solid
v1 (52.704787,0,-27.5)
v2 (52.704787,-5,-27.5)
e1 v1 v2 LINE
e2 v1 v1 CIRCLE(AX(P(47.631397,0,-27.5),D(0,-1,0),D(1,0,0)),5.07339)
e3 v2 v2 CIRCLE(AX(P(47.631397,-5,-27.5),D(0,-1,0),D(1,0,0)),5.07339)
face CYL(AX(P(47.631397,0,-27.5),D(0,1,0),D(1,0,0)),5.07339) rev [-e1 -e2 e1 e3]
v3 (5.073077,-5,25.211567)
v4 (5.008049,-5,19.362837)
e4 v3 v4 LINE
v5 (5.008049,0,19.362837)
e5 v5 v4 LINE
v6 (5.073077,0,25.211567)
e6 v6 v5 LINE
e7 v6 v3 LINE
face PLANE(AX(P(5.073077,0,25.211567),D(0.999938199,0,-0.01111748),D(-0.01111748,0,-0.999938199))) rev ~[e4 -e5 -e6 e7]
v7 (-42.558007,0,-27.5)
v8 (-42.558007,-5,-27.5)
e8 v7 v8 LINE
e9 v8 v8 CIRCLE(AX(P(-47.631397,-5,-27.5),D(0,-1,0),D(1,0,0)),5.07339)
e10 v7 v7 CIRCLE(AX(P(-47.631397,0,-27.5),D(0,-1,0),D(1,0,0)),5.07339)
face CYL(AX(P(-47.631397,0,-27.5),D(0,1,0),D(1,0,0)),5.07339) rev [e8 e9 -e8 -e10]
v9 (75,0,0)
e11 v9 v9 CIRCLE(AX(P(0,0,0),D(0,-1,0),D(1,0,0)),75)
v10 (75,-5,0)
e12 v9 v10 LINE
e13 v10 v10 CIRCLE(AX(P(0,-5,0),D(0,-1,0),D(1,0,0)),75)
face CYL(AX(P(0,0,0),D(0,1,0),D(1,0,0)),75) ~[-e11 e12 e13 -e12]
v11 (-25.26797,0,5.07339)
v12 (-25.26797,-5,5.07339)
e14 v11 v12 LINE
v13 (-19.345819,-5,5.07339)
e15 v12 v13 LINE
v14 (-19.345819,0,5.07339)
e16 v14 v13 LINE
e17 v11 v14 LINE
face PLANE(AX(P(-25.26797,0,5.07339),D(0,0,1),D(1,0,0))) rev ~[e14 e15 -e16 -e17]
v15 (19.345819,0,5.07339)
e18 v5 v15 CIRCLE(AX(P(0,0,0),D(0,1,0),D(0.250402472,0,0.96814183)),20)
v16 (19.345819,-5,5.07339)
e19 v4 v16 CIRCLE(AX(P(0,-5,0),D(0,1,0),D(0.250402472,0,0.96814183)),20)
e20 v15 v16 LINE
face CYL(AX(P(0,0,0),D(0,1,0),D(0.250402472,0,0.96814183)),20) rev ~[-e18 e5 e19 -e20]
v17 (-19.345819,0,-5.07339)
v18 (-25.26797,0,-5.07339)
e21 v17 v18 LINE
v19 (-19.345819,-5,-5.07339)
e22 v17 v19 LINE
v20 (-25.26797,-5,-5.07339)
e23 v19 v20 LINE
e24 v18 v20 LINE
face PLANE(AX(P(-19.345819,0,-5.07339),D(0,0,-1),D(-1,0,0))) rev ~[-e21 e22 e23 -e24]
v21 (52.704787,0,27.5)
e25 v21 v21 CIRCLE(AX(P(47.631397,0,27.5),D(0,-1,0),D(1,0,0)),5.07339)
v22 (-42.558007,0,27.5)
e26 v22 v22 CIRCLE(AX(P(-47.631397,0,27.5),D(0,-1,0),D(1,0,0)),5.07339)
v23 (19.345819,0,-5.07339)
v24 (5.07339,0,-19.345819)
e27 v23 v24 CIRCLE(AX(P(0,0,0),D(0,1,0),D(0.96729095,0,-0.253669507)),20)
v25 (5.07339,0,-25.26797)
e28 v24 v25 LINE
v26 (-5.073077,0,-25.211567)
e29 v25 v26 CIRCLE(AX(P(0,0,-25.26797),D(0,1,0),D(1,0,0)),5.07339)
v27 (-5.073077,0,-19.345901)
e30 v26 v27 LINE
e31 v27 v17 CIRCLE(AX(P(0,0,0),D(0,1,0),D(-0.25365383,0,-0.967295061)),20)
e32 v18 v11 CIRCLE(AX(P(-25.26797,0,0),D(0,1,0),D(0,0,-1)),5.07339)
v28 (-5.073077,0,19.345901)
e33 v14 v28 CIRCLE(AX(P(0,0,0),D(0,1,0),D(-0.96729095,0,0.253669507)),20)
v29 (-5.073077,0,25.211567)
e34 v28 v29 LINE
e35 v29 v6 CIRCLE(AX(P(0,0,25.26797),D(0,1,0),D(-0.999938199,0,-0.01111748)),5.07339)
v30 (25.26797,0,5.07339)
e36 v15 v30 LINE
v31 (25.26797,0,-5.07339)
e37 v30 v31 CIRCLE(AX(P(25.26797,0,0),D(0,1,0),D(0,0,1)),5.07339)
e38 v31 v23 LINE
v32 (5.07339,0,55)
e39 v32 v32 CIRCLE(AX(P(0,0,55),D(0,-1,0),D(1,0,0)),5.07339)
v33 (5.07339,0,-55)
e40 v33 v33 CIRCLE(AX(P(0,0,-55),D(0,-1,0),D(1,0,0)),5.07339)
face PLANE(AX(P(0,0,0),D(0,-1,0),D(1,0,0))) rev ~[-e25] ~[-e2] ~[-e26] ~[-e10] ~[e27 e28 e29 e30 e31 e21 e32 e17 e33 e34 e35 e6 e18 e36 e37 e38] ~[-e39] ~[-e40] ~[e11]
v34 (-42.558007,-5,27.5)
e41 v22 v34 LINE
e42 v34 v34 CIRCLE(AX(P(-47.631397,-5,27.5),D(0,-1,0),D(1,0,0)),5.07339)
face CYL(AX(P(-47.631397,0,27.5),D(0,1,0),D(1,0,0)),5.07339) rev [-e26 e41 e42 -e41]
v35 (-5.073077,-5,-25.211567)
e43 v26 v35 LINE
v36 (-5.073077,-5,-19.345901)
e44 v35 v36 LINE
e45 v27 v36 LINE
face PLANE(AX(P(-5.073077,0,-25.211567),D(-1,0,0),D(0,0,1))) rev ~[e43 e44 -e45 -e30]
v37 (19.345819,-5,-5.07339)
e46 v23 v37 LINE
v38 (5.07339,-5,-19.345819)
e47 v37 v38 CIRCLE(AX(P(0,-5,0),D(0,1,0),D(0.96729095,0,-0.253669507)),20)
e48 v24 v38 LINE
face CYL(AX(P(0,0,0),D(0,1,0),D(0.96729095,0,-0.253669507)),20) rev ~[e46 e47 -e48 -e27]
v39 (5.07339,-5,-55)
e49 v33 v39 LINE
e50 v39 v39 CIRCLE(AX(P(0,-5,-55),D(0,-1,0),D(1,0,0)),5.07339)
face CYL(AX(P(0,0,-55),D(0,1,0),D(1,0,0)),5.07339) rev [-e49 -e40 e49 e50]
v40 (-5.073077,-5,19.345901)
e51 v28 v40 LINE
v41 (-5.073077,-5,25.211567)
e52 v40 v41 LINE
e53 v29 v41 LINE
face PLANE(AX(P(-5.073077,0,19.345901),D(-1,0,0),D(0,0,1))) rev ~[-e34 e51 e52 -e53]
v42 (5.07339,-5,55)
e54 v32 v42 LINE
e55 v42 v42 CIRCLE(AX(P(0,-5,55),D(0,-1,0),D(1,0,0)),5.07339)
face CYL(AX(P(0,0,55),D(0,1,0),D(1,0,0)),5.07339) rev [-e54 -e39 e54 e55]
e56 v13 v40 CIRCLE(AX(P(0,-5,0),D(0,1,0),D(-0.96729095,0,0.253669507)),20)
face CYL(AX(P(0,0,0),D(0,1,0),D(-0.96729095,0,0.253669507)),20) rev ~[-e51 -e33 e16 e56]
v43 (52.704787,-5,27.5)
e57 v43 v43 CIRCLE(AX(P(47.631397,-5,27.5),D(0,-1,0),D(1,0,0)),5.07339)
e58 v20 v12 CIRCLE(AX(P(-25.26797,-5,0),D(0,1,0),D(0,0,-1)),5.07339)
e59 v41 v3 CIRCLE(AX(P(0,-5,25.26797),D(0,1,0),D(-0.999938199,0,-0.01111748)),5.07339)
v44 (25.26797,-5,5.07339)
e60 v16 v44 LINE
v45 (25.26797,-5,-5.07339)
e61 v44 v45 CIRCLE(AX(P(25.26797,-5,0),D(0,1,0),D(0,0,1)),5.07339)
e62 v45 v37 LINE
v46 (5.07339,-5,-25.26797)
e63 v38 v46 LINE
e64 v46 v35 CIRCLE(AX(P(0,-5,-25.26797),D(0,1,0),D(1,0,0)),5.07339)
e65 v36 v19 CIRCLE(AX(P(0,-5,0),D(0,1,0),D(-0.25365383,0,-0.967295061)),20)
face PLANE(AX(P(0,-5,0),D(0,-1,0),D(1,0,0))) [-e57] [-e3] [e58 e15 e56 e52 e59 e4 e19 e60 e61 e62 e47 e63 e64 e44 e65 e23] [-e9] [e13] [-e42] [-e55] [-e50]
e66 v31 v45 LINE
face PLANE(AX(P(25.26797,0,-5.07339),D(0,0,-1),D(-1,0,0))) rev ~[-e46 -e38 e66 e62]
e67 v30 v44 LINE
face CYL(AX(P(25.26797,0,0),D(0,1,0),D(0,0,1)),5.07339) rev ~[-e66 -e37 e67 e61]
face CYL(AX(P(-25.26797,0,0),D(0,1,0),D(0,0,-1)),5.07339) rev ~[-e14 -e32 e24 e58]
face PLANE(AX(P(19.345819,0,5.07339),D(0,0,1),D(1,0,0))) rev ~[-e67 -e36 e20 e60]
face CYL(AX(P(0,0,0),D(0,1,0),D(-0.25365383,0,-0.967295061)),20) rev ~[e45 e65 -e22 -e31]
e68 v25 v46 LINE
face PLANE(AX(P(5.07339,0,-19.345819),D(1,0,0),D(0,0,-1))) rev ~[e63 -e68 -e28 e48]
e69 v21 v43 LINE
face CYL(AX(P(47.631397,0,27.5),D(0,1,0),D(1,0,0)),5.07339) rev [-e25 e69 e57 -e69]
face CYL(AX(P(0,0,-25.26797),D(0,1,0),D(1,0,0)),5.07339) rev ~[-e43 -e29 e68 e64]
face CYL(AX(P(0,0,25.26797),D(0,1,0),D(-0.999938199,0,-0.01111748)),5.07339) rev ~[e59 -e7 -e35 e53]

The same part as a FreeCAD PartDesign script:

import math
import FreeCAD as App
import Part
import Sketcher
Q = App.Units.Quantity

doc = App.newDocument("Part")
body = doc.addObject("PartDesign::Body", "Body")

sketch1 = body.newObject("Sketcher::SketchObject", "Sketch")
sketch1.AttachmentSupport = (doc.getObject("XZ_Plane"), [""])
sketch1.MapMode = "FlatFace"
sketch1.addGeometry([
    Part.Circle(App.Vector(0, 0, 0), App.Vector(0, 0, 1), 75),
    Part.Circle(App.Vector(-47.631397, -27.5, 0), App.Vector(0, 0, 1), 5.07339),
    Part.Circle(App.Vector(0, -55, 0), App.Vector(0, 0, 1), 5.07339),
    Part.Circle(App.Vector(47.631397, -27.5, 0), App.Vector(0, 0, 1), 5.07339),
    Part.Circle(App.Vector(-47.631397, 27.5, 0), App.Vector(0, 0, 1), 5.07339),
    Part.LineSegment(App.Vector(-25.26797, 5.07339, 0), App.Vector(-19.345819, 5.07339, 0)),
    Part.ArcOfCircle(Part.Circle(App.Vector(0, 0, 0), App.Vector(0, 0, 1), 20), math.radians(104.693833), math.radians(165.305239)),
    Part.LineSegment(App.Vector(-5.073077, 19.345901, 0), App.Vector(-5.073077, 25.211567, 0)),
    Part.ArcOfCircle(Part.Circle(App.Vector(0, 25.26797, 0), App.Vector(0, 0, 1), 5.07339), math.radians(-0.636998), math.radians(180.636998)),
    Part.LineSegment(App.Vector(5.073077, 25.211567, 0), App.Vector(5.008049, 19.362837, 0)),
    Part.ArcOfCircle(Part.Circle(App.Vector(0, 0, 0), App.Vector(0, 0, 1), 20), math.radians(14.694761), math.radians(75.49867)),
    Part.LineSegment(App.Vector(19.345819, 5.07339, 0), App.Vector(25.26797, 5.07339, 0)),
    Part.ArcOfCircle(Part.Circle(App.Vector(25.26797, 0, 0), App.Vector(0, 0, 1), 5.07339), math.radians(-90), math.radians(90)),
    Part.LineSegment(App.Vector(25.26797, -5.07339, 0), App.Vector(19.345819, -5.07339, 0)),
    Part.ArcOfCircle(Part.Circle(App.Vector(0, 0, 0), App.Vector(0, 0, 1), 20), math.radians(-75.305239), math.radians(-14.694761)),
    Part.LineSegment(App.Vector(5.07339, -19.345819, 0), App.Vector(5.07339, -25.26797, 0)),
    Part.ArcOfCircle(Part.Circle(App.Vector(0, -25.26797, 0), App.Vector(0, 0, 1), 5.07339), math.radians(179.363002), math.radians(360)),
    Part.LineSegment(App.Vector(-5.073077, -25.211567, 0), App.Vector(-5.073077, -19.345901, 0)),
    Part.ArcOfCircle(Part.Circle(App.Vector(0, 0, 0), App.Vector(0, 0, 1), 20), math.radians(-165.305239), math.radians(-104.693833)),
    Part.LineSegment(App.Vector(-19.345819, -5.07339, 0), App.Vector(-25.26797, -5.07339, 0)),
    Part.ArcOfCircle(Part.Circle(App.Vector(-25.26797, 0, 0), App.Vector(0, 0, 1), 5.07339), math.radians(90), math.radians(270)),
    Part.Circle(App.Vector(47.631397, 27.5, 0), App.Vector(0, 0, 1), 5.07339),
    Part.Circle(App.Vector(0, 55, 0), App.Vector(0, 0, 1), 5.07339),
], False)
sketch1.addConstraint([
    Sketcher.Constraint("Coincident", 5, 2, 6, 2),
    Sketcher.Constraint("Coincident", 6, 1, 7, 1),
    Sketcher.Constraint("Coincident", 7, 2, 8, 2),
    Sketcher.Constraint("Tangent", 8, 1, 9, 1),
    Sketcher.Constraint("Coincident", 9, 2, 10, 2),
    Sketcher.Constraint("Coincident", 10, 1, 11, 1),
    Sketcher.Constraint("Tangent", 11, 2, 12, 2),
    Sketcher.Constraint("Tangent", 12, 1, 13, 1),
    Sketcher.Constraint("Coincident", 13, 2, 14, 2),
    Sketcher.Constraint("Coincident", 14, 1, 15, 1),
    Sketcher.Constraint("Tangent", 15, 2, 16, 2),
    Sketcher.Constraint("Coincident", 16, 1, 17, 1),
    Sketcher.Constraint("Coincident", 17, 2, 18, 2),
    Sketcher.Constraint("Coincident", 18, 1, 19, 1),
    Sketcher.Constraint("Tangent", 19, 2, 20, 2),
    Sketcher.Constraint("Tangent", 20, 1, 5, 1),
    Sketcher.Constraint("Horizontal", 5),
    Sketcher.Constraint("Vertical", 7),
    Sketcher.Constraint("Horizontal", 11),
    Sketcher.Constraint("Horizontal", 13),
    Sketcher.Constraint("Vertical", 15),
    Sketcher.Constraint("Vertical", 17),
    Sketcher.Constraint("Horizontal", 19),
    Sketcher.Constraint("Coincident", 0, 3, -1, 1),
    Sketcher.Constraint("Coincident", 6, 3, -1, 1),
    Sketcher.Constraint("Coincident", 10, 3, -1, 1),
    Sketcher.Constraint("Coincident", 14, 3, -1, 1),
    Sketcher.Constraint("Coincident", 18, 3, -1, 1),
    Sketcher.Constraint("Equal", 1, 2),
    Sketcher.Constraint("Equal", 2, 3),
    Sketcher.Constraint("Equal", 3, 4),
    Sketcher.Constraint("Equal", 4, 8),
    Sketcher.Constraint("Equal", 6, 10),
    Sketcher.Constraint("Equal", 8, 12),
    Sketcher.Constraint("Equal", 10, 14),
    Sketcher.Constraint("Equal", 12, 16),
    Sketcher.Constraint("Equal", 14, 18),
    Sketcher.Constraint("Equal", 16, 20),
    Sketcher.Constraint("Equal", 20, 21),
    Sketcher.Constraint("Equal", 21, 22),
    Sketcher.Constraint("Symmetric", 3, 3, 4, 3, -1, 1),
    Sketcher.Constraint("Symmetric", 8, 3, 16, 3, -1, 1),
    Sketcher.Constraint("Symmetric", 12, 3, 20, 3, -1, 1),
    Sketcher.Constraint("Symmetric", 1, 3, 21, 3, -1, 1),
    Sketcher.Constraint("Symmetric", 2, 3, 22, 3, -1, 1),
    Sketcher.Constraint("Symmetric", 1, 3, 3, 3, -2),
    Sketcher.Constraint("Symmetric", 7, 2, 8, 1, -2),
    Sketcher.Constraint("PointOnObject", 2, 3, -2),
    Sketcher.Constraint("PointOnObject", 12, 3, -1),
    Sketcher.Constraint("Vertical", 7, 2, 16, 1),
    Sketcher.Constraint("Equal", 19, 15),
    Sketcher.Constraint("Diameter", 0, Q("150 mm")),
    Sketcher.Constraint("Radius", 6, Q("20 mm")),
    Sketcher.Constraint("DistanceY", 2, 3, -1, 1, Q("55 mm")),
    Sketcher.Constraint("DistanceY", 1, 3, 4, 3, Q("55 mm")),
    Sketcher.Constraint("Diameter", 1, Q("10.14678 mm")),
    Sketcher.Constraint("DistanceX", 5, 1, 5, 2, Q("5.922151 mm")),
    Sketcher.Constraint("Distance", 9, Q("5.849091 mm")),
    Sketcher.Constraint("DistanceX", 1, 3, -1, 1, Q("47.631397 mm")),
])
pad1 = body.newObject("PartDesign::Pad", "Pad")
pad1.Profile = sketch1
pad1.Length = 5

doc.recompute()
